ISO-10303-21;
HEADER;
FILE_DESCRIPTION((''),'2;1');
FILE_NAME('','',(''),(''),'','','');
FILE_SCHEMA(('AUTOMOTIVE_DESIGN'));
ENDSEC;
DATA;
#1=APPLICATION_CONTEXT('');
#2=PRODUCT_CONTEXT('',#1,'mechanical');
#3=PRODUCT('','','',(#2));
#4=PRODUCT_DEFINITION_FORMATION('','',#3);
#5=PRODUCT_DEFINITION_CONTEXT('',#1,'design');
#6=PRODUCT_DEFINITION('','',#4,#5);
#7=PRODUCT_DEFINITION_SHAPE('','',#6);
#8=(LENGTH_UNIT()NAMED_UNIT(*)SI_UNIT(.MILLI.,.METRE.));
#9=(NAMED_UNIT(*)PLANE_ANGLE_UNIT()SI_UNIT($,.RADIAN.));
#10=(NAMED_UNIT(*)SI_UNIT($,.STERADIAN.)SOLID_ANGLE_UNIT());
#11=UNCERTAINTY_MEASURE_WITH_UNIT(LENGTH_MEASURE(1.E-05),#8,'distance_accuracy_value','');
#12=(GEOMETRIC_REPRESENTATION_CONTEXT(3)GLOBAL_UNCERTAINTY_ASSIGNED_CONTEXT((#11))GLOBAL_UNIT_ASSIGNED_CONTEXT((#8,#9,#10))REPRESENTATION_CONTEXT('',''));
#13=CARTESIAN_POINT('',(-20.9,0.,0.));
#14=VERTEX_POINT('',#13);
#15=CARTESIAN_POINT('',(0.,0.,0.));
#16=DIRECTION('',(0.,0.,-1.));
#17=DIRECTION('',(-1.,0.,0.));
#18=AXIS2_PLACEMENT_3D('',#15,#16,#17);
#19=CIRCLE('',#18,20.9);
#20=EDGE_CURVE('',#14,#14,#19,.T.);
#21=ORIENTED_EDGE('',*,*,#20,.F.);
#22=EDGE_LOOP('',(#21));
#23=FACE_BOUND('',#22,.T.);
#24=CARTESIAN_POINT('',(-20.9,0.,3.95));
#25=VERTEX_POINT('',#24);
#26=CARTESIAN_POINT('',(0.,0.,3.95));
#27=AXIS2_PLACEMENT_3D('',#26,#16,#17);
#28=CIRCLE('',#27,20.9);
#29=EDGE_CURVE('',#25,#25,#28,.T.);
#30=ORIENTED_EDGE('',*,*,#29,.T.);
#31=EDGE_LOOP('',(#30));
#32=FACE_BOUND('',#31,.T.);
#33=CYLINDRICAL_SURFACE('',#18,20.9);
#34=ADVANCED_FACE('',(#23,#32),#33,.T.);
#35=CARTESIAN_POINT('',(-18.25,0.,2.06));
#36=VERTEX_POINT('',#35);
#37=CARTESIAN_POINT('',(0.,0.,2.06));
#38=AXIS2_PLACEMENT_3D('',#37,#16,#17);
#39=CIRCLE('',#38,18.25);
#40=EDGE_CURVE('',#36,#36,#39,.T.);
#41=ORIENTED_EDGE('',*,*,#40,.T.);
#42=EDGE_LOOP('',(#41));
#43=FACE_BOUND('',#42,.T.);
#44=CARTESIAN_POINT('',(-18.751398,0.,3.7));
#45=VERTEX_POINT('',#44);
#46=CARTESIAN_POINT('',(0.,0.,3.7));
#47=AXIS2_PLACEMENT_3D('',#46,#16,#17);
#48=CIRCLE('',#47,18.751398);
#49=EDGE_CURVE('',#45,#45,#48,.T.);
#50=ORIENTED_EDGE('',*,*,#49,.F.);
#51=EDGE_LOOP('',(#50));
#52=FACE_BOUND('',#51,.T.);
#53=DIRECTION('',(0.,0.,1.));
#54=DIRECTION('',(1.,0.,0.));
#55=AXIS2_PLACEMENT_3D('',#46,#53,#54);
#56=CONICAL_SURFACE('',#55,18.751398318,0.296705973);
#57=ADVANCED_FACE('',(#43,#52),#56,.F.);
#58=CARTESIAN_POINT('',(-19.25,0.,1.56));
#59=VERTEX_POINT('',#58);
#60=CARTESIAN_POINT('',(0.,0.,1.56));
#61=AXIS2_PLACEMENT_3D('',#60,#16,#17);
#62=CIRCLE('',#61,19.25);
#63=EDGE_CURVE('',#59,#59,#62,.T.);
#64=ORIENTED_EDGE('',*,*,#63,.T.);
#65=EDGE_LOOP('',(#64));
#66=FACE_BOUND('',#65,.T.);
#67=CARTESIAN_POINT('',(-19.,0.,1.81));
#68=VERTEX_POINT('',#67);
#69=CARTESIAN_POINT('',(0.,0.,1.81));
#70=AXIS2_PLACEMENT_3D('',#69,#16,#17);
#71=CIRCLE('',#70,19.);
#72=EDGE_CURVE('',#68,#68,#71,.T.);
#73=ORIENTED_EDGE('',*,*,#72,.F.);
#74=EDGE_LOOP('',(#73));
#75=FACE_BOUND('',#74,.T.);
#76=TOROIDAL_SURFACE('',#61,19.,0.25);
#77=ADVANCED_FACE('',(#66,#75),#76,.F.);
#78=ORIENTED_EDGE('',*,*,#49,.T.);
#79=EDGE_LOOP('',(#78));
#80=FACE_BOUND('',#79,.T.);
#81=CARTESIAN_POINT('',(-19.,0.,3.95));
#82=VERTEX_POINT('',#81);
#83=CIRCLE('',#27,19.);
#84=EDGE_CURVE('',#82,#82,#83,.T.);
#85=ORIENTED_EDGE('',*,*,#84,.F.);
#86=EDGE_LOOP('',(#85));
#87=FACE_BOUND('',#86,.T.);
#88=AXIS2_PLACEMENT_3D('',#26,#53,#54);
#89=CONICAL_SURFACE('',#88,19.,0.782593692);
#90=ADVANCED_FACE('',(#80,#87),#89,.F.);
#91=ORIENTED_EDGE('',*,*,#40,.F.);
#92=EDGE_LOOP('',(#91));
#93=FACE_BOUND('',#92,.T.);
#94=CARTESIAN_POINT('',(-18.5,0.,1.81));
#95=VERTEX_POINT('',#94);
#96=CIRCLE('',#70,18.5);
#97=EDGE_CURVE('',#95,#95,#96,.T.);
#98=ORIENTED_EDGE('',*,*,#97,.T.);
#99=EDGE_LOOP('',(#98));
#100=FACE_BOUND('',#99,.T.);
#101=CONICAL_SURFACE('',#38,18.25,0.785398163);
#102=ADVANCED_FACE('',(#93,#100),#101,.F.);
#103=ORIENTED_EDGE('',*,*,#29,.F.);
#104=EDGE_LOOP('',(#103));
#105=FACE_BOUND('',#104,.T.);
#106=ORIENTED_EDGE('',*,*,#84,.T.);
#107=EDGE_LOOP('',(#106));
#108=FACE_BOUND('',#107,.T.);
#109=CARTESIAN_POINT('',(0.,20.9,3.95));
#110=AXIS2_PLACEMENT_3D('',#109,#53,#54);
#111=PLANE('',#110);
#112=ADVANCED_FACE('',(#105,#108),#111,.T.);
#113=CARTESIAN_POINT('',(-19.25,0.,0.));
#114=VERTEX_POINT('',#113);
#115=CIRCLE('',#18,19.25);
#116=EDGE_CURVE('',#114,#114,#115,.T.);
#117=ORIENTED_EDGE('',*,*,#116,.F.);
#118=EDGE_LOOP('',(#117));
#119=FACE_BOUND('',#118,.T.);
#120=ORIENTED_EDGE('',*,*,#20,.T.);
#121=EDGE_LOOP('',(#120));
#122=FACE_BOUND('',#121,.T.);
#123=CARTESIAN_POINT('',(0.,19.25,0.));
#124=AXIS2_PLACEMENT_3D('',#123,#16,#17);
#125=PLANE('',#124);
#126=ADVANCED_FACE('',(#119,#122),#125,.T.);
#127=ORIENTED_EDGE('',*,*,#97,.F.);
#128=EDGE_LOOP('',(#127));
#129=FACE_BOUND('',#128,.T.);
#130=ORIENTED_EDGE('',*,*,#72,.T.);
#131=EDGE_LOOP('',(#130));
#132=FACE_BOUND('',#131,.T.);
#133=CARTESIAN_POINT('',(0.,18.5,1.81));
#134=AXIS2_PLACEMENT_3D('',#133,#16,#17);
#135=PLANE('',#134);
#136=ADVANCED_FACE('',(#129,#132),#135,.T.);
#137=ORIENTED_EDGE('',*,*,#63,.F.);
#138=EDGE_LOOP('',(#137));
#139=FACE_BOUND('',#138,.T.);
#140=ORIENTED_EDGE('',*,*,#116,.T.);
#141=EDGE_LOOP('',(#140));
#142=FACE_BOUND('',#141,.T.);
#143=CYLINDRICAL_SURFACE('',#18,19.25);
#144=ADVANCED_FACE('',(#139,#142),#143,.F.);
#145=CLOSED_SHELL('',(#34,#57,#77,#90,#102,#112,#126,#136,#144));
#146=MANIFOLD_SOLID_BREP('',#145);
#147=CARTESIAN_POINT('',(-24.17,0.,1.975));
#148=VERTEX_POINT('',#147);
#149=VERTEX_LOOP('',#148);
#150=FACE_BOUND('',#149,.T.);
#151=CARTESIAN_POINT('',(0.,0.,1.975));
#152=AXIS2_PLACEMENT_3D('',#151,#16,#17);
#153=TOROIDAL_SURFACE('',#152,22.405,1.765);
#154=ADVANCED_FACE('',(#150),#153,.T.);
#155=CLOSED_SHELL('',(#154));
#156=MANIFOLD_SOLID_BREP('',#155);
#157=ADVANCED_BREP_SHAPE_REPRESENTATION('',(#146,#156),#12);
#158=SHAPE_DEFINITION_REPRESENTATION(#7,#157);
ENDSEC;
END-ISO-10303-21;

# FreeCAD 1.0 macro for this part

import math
import FreeCAD as App
import Part
import Sketcher

V = App.Vector
Q = App.Units.Quantity

doc = App.newDocument("Part")
body = doc.addObject("PartDesign::Body", "Body")

# Sketch on YZ plane
sketch1 = body.newObject("Sketcher::SketchObject", "Sketch")
sketch1.AttachmentSupport = (doc.getObject("YZ_Plane"), [""])
sketch1.MapMode = "FlatFace"
sketch1.addGeometry(Part.LineSegment(V(19.25, 0, 0), V(20.9, 0, 0)), False)
sketch1.addGeometry(Part.LineSegment(V(20.9, 0, 0), V(20.9, 3.95, 0)), False)
sketch1.addGeometry(Part.LineSegment(V(20.9, 3.95, 0), V(19, 3.95, 0)), False)
sketch1.addGeometry(Part.LineSegment(V(19, 3.95, 0), V(18.751398, 3.7, 0)), False)
sketch1.addGeometry(Part.LineSegment(V(18.751398, 3.7, 0), V(18.25, 2.06, 0)), False)
sketch1.addGeometry(Part.LineSegment(V(18.25, 2.06, 0), V(18.5, 1.81, 0)), False)
sketch1.addGeometry(Part.LineSegment(V(18.5, 1.81, 0), V(19, 1.81, 0)), False)
sketch1.addGeometry(Part.ArcOfCircle(Part.Circle(V(19, 1.56, 0), V(0, 0, 1), 0.25), math.radians(0), math.radians(90)), False)
sketch1.addGeometry(Part.LineSegment(V(19.25, 1.56, 0), V(19.25, 0, 0)), False)
sketch1.addConstraint(Sketcher.Constraint("Coincident", 0, 2, 1, 1))
sketch1.addConstraint(Sketcher.Constraint("Coincident", 1, 2, 2, 1))
sketch1.addConstraint(Sketcher.Constraint("Coincident", 2, 2, 3, 1))
sketch1.addConstraint(Sketcher.Constraint("Coincident", 3, 2, 4, 1))
sketch1.addConstraint(Sketcher.Constraint("Coincident", 4, 2, 5, 1))
sketch1.addConstraint(Sketcher.Constraint("Coincident", 5, 2, 6, 1))
sketch1.addConstraint(Sketcher.Constraint("Tangent", 6, 2, 7, 2))
sketch1.addConstraint(Sketcher.Constraint("Tangent", 7, 1, 8, 1))
sketch1.addConstraint(Sketcher.Constraint("Coincident", 8, 2, 0, 1))
sketch1.addConstraint(Sketcher.Constraint("Horizontal", 0))
sketch1.addConstraint(Sketcher.Constraint("Vertical", 1))
sketch1.addConstraint(Sketcher.Constraint("Horizontal", 2))
sketch1.addConstraint(Sketcher.Constraint("Horizontal", 6))
sketch1.addConstraint(Sketcher.Constraint("Vertical", 8))
sketch1.addConstraint(Sketcher.Constraint("PointOnObject", 0, 2, -1))
sketch1.addConstraint(Sketcher.Constraint("Vertical", 7, 3, 2, 2))
sketch1.addConstraint(Sketcher.Constraint("Angle", 4, Q("-107 deg")))
sketch1.addConstraint(Sketcher.Constraint("Angle", 5, Q("-45 deg")))
sketch1.addConstraint(Sketcher.Constraint("Radius", 7, 0.25))
sketch1.addConstraint(Sketcher.Constraint("DistanceX", 2, 2, 2, 1, 1.9))
sketch1.addConstraint(Sketcher.Constraint("DistanceX", 6, 1, 6, 2, 0.5))
sketch1.addConstraint(Sketcher.Constraint("DistanceX", -1, 1, 7, 3, 19.0))
sketch1.addConstraint(Sketcher.Constraint("DistanceX", 4, 2, 7, 1, 1.0))
sketch1.addConstraint(Sketcher.Constraint("DistanceY", 1, 1, 1, 2, 3.95))
sketch1.addConstraint(Sketcher.Constraint("DistanceY", 8, 2, 8, 1, 1.56))
sketch1.addConstraint(Sketcher.Constraint("DistanceY", -1, 1, 3, 2, 3.7))
revolution = body.newObject("PartDesign::Revolution", "Revolution")
revolution.Profile = sketch1
revolution.ReferenceAxis = (sketch1, ["V_Axis"])
revolution.Angle = 360
body2 = doc.addObject("PartDesign::Body", "Body001")

# Sketch on YZ plane
sketch2 = body2.newObject("Sketcher::SketchObject", "Sketch001")
sketch2.AttachmentSupport = (doc.getObject("YZ_Plane001"), [""])
sketch2.MapMode = "FlatFace"
sketch2.addGeometry(Part.Circle(V(22.405, 1.975, 0), V(0, 0, 1), 1.765), False)
sketch2.addConstraint(Sketcher.Constraint("Diameter", 0, 3.53))
sketch2.addConstraint(Sketcher.Constraint("DistanceX", -1, 1, 0, 3, 22.405))
sketch2.addConstraint(Sketcher.Constraint("DistanceY", -1, 1, 0, 3, 1.975))
revolution2 = body2.newObject("PartDesign::Revolution", "Revolution001")
revolution2.Profile = sketch2
revolution2.ReferenceAxis = (sketch2, ["V_Axis"])
revolution2.Angle = 360

doc.recompute()
